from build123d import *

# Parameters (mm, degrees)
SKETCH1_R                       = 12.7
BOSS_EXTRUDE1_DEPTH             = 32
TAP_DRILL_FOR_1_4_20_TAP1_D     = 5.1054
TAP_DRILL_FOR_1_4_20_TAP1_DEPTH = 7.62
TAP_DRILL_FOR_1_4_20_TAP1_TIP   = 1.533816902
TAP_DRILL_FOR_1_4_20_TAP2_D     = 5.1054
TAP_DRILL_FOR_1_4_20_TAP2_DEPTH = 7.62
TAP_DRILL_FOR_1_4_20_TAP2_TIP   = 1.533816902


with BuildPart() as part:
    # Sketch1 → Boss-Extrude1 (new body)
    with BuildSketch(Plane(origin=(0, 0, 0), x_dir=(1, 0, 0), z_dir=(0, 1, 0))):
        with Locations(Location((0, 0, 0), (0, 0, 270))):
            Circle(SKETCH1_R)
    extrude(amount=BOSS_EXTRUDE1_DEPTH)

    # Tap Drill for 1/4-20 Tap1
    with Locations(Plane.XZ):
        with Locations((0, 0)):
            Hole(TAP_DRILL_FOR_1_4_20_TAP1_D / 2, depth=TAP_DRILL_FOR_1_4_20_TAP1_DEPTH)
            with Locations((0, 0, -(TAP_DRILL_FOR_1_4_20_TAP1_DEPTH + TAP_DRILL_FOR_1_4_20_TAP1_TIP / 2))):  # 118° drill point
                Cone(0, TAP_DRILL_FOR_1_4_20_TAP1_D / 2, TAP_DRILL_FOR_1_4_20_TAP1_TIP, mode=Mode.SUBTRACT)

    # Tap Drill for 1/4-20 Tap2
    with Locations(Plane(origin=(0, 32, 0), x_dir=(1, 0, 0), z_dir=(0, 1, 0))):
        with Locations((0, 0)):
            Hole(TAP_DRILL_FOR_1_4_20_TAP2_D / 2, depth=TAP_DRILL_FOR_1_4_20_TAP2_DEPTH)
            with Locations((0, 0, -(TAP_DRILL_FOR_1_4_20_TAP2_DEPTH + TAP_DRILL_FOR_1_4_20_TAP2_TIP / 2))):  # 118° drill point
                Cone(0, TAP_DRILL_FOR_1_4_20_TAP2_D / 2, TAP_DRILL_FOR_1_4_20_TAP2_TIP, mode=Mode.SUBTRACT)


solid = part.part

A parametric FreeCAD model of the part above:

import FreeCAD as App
import Part
import Sketcher
Q = App.Units.Quantity

doc = App.newDocument("Part")
body = doc.addObject("PartDesign::Body", "Body")

# Sketch on XZ plane
sketch1 = doc.addObject("Sketcher::SketchObject", "Sketch")
body.addObject(sketch1)
sketch1.AttachmentSupport = (doc.XZ_Plane, [""])
sketch1.MapMode = "FlatFace"
sketch1.addGeometry(Part.Circle(App.Vector(0, 0, 0), App.Vector(0, 0, 1), 13), False)
sketch1.addConstraint(Sketcher.Constraint("Coincident", 0, 3, -1, 1))
sketch1.addConstraint(Sketcher.Constraint("Diameter", 0, Q("1 in")))
pad1 = doc.addObject("PartDesign::Pad", "Pad")
body.addObject(pad1)
pad1.Profile = sketch1
pad1.Length = 32
pad1.Reversed = True

# Sketch on XZ plane
sketch2 = doc.addObject("Sketcher::SketchObject", "Sketch001")
body.addObject(sketch2)
sketch2.AttachmentSupport = (doc.XZ_Plane, [""])
sketch2.MapMode = "FlatFace"
sketch2.addGeometry(Part.Circle(App.Vector(0, 0, 0), App.Vector(0, 0, 1), 2.6), False)
sketch2.addConstraint(Sketcher.Constraint("Coincident", 0, 3, -1, 1))
sketch2.addConstraint(Sketcher.Constraint("Diameter", 0, Q("0.201 in")))
doc.recompute()
hole = doc.addObject("PartDesign::Hole", "Hole")
body.addObject(hole)
hole.Profile = sketch2
hole.ThreadType = "None"
hole.Diameter = Q("0.201 in")
hole.DepthType = "Dimension"
hole.Depth = Q("0.3 in")
hole.DrillPoint = "Angled"
hole.DrillPointAngle = 118

# Sketch on XZ plane
sketch3 = doc.addObject("Sketcher::SketchObject", "Sketch002")
body.addObject(sketch3)
sketch3.AttachmentSupport = (doc.XZ_Plane, [""])
sketch3.MapMode = "FlatFace"
sketch3.AttachmentOffset = App.Placement(App.Vector(0, 0, -32), App.Rotation())
sketch3.addGeometry(Part.Circle(App.Vector(0, 0, 0), App.Vector(0, 0, 1), 2.6), False)
sketch3.addConstraint(Sketcher.Constraint("Coincident", 0, 3, -1, 1))
sketch3.addConstraint(Sketcher.Constraint("Diameter", 0, Q("0.201 in")))
doc.recompute()
hole2 = doc.addObject("PartDesign::Hole", "Hole001")
body.addObject(hole2)
hole2.Profile = sketch3
hole2.ThreadType = "None"
hole2.Diameter = Q("0.201 in")
hole2.DepthType = "Dimension"
hole2.Depth = Q("0.3 in")
hole2.DrillPoint = "Angled"
hole2.DrillPointAngle = 118
hole2.Reversed = True

doc.recompute()
